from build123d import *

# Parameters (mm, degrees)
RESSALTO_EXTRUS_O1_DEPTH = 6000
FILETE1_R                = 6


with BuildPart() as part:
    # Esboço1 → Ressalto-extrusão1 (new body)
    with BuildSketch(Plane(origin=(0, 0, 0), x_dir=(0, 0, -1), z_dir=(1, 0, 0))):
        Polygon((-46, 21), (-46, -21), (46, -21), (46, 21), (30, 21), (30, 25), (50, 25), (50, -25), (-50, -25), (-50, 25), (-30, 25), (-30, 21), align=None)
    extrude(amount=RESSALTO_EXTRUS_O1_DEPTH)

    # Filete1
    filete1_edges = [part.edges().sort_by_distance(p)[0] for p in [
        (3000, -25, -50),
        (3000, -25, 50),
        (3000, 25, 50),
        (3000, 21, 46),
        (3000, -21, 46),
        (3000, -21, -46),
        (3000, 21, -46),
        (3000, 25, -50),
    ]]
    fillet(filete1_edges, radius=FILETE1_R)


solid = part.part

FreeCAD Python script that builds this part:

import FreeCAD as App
import Part
import Sketcher
from FreeCAD import Vector
Q = App.Units.Quantity


def edges_at(feature, points):
    """Names of the edges that pass closest to the given points."""
    edges = feature.Shape.Edges
    near = lambda p: min(range(len(edges)), key=lambda i: edges[i].distToShape(Part.Vertex(*p))[0])
    return sorted({f"Edge{near(p) + 1}" for p in points})


def add_polygon(sketch, points):
    """Adds a closed chain of lines whose ends are joined by coincident constraints."""
    first, n = sketch.GeometryCount, len(points)
    for a, b in zip(points, points[1:] + points[:1]):
        sketch.addGeometry(Part.LineSegment(App.Vector(*a, 0), App.Vector(*b, 0)), False)
    for i in range(n):
        sketch.addConstraint(Sketcher.Constraint("Coincident", first + i, 2, first + (i + 1) % n, 1))

doc = App.newDocument("Part")
body = doc.addObject("PartDesign::Body", "Body")

# Sketch on YZ plane
sketch1 = doc.addObject("Sketcher::SketchObject", "Sketch")
body.addObject(sketch1)
sketch1.AttachmentSupport = (doc.YZ_Plane, [""])
sketch1.MapMode = "FlatFace"
add_polygon(sketch1, [(-21, 46), (21, 46), (21, 30), (25, 30), (25, 50), (-25, 50), (-25, -50), (25, -50), (25, -30), (21, -30), (21, -46), (-21, -46)])  # lines 0-11
sketch1.addConstraint(Sketcher.Constraint("Horizontal", 0))
sketch1.addConstraint(Sketcher.Constraint("Vertical", 1))
sketch1.addConstraint(Sketcher.Constraint("Horizontal", 2))
sketch1.addConstraint(Sketcher.Constraint("Vertical", 3))
sketch1.addConstraint(Sketcher.Constraint("Horizontal", 4))
sketch1.addConstraint(Sketcher.Constraint("Vertical", 5))
sketch1.addConstraint(Sketcher.Constraint("Horizontal", 6))
sketch1.addConstraint(Sketcher.Constraint("Vertical", 7))
sketch1.addConstraint(Sketcher.Constraint("Horizontal", 8))
sketch1.addConstraint(Sketcher.Constraint("Vertical", 9))
sketch1.addConstraint(Sketcher.Constraint("Horizontal", 10))
sketch1.addConstraint(Sketcher.Constraint("Vertical", 11))
sketch1.addConstraint(Sketcher.Constraint("Symmetric", 3, 2, 5, 2, -1, 1))
sketch1.addConstraint(Sketcher.Constraint("Symmetric", 0, 2, 10, 2, -1, 1))
sketch1.addConstraint(Sketcher.Constraint("Symmetric", 2, 2, 7, 2, -1))
sketch1.addConstraint(Sketcher.Constraint("Vertical", 1, 2, 8, 2))
sketch1.addConstraint(Sketcher.Constraint("DistanceX", 0, 1, 0, 2, Q("42 mm")))
sketch1.addConstraint(Sketcher.Constraint("DistanceX", 2, 1, 2, 2, Q("4 mm")))
sketch1.addConstraint(Sketcher.Constraint("DistanceY", 1, 2, 1, 1, Q("16 mm")))
sketch1.addConstraint(Sketcher.Constraint("DistanceY", 3, 1, 3, 2, Q("20 mm")))
sketch1.addConstraint(Sketcher.Constraint("DistanceY", 5, 2, 5, 1, Q("100 mm")))
pad1 = doc.addObject("PartDesign::Pad", "Pad")
body.addObject(pad1)
pad1.Profile = sketch1
pad1.Length = 6000
doc.recompute()

fillet = doc.addObject("PartDesign::Fillet", "Fillet")
body.addObject(fillet)
fillet.Base = (pad1, edges_at(pad1, [
    (3000, -25, -50),
    (3000, -25, 50),
    (3000, 25, 50),
    (3000, 21, 46),
    (3000, -21, 46),
    (3000, -21, -46),
    (3000, 21, -46),
    (3000, 25, -50),
]))
fillet.Radius = 6

doc.recompute()
